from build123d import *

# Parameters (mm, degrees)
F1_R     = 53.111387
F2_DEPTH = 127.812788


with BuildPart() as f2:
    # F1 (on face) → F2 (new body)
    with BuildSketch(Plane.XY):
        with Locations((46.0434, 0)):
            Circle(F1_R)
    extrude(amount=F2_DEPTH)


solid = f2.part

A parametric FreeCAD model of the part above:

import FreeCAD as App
import Part
import Sketcher

doc = App.newDocument("Part")
body = doc.addObject("PartDesign::Body", "Body")

# Sketch on XY plane
sketch1 = body.newObject("Sketcher::SketchObject", "Sketch")
sketch1.AttachmentSupport = (doc.getObject("XY_Plane"), [""])
sketch1.MapMode = "FlatFace"
sketch1.addGeometry(Part.Circle(App.Vector(46.0434, 0, 0), App.Vector(0, 0, 1), 53.111387), False)
sketch1.addConstraint([
    Sketcher.Constraint("PointOnObject", 0, 3, -1),
    Sketcher.Constraint("Diameter", 0, 106.222774),
    Sketcher.Constraint("DistanceX", -1, 1, 0, 3, 46.0434),
])
pad1 = body.newObject("PartDesign::Pad", "Pad")
pad1.Profile = sketch1
pad1.Length = 127.812788

doc.recompute()
